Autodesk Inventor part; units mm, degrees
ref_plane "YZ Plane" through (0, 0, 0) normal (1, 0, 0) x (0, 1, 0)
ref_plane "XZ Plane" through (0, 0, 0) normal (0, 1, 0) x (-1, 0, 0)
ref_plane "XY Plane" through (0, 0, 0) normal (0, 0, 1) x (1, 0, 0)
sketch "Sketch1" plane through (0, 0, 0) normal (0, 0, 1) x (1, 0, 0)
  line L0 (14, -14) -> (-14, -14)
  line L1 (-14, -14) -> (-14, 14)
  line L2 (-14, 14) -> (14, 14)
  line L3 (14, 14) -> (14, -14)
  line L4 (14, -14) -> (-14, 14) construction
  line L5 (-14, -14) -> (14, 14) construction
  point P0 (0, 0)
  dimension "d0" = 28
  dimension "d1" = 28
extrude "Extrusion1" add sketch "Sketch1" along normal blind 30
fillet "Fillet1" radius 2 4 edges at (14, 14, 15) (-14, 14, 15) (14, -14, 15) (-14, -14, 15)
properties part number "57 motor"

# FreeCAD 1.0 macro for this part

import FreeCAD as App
import Part
import Sketcher
from FreeCAD import Vector


def edges_at(feature, points):
    """Names of the edges that pass closest to the given points."""
    edges = feature.Shape.Edges
    near = lambda p: min(range(len(edges)), key=lambda i: edges[i].distToShape(Part.Vertex(*p))[0])
    return sorted({f"Edge{near(p) + 1}" for p in points})

doc = App.newDocument("Part")
body = doc.addObject("PartDesign::Body", "Body")

sketch1 = doc.addObject("Sketcher::SketchObject", "Sketch")
body.addObject(sketch1)
sketch1.AttachmentSupport = (doc.XY_Plane, [""])
sketch1.MapMode = "FlatFace"
sketch1.addGeometry(Part.LineSegment(Vector(-14, -14, 0), Vector(14, -14, 0)), False)
sketch1.addGeometry(Part.LineSegment(Vector(14, -14, 0), Vector(14, 14, 0)), False)
sketch1.addGeometry(Part.LineSegment(Vector(14, 14, 0), Vector(-14, 14, 0)), False)
sketch1.addGeometry(Part.LineSegment(Vector(-14, 14, 0), Vector(-14, -14, 0)), False)
sketch1.addConstraint(Sketcher.Constraint("Coincident", 0, 2, 1, 1))
sketch1.addConstraint(Sketcher.Constraint("Coincident", 1, 2, 2, 1))
sketch1.addConstraint(Sketcher.Constraint("Coincident", 2, 2, 3, 1))
sketch1.addConstraint(Sketcher.Constraint("Coincident", 3, 2, 0, 1))
sketch1.addConstraint(Sketcher.Constraint("Horizontal", 0))
sketch1.addConstraint(Sketcher.Constraint("Vertical", 1))
sketch1.addConstraint(Sketcher.Constraint("Horizontal", 2))
sketch1.addConstraint(Sketcher.Constraint("Vertical", 3))
sketch1.addConstraint(Sketcher.Constraint("Symmetric", 0, 2, 2, 2, -1, 1))
sketch1.addConstraint(Sketcher.Constraint("Equal", 2, 1))
sketch1.addConstraint(Sketcher.Constraint("DistanceX", 0, 1, 0, 2, 28.0))
pad1 = doc.addObject("PartDesign::Pad", "Pad")
body.addObject(pad1)
pad1.Profile = sketch1
pad1.Length = 30
doc.recompute()

fillet = doc.addObject("PartDesign::Fillet", "Fillet")
body.addObject(fillet)
fillet.Base = (pad1, edges_at(pad1, [
    (14, 14, 15),
    (-14, 14, 15),
    (14, -14, 15),
    (-14, -14, 15),
]))
fillet.Radius = 2

doc.recompute()
